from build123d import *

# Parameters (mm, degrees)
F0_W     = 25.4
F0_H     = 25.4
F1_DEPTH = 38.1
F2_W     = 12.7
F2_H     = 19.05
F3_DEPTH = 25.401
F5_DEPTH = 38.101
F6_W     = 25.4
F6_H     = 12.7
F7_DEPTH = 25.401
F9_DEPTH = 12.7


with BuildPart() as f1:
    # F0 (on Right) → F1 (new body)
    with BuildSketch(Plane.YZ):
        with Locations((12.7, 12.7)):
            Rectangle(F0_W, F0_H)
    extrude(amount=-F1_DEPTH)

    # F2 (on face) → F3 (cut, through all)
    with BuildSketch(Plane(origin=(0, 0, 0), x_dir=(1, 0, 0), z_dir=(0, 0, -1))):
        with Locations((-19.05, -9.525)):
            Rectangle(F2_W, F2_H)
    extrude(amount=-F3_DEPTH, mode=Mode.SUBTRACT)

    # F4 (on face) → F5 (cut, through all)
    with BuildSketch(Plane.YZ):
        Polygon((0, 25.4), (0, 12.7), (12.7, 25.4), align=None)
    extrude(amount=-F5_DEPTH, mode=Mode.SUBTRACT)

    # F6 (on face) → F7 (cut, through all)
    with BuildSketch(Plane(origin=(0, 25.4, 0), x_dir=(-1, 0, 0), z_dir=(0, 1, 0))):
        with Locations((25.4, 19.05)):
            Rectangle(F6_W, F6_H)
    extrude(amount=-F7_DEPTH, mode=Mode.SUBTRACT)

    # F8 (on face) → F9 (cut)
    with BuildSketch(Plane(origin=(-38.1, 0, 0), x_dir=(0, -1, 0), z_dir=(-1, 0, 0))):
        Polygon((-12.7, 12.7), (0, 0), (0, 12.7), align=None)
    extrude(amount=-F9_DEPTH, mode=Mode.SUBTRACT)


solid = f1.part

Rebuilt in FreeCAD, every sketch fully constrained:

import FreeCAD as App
import Part
import Sketcher
Q = App.Units.Quantity


def add_polygon(sketch, points):
    """Adds a closed chain of lines whose ends are joined by coincident constraints."""
    first, n = sketch.GeometryCount, len(points)
    for a, b in zip(points, points[1:] + points[:1]):
        sketch.addGeometry(Part.LineSegment(App.Vector(*a, 0), App.Vector(*b, 0)), False)
    for i in range(n):
        sketch.addConstraint(Sketcher.Constraint("Coincident", first + i, 2, first + (i + 1) % n, 1))

doc = App.newDocument("Part")
params = doc.addObject("Spreadsheet::Sheet", "Params")
for row, (alias, value) in enumerate([
    ("sketch1_width", "1 in"),
    ("pad1_length", "1.5 in"),
    ("sketch2_width", "0.5 in"),
    ("sketch2_height", "0.75 in"),
    ("sketch3_width", "0.5 in"),
    ("sketch4_width", "1 in"),
    ("sketch4_height", "0.5 in"),
    ("sketch5_width", "0.5 in"),
    ("pocket4_length", "0.5 in"),
], start=1):
    params.set(f"A{row}", alias)
    params.set(f"B{row}", "=" + value)
    params.setAlias(f"B{row}", alias)

body = doc.addObject("PartDesign::Body", "Body")

# Sketch on YZ plane
sketch1 = body.newObject("Sketcher::SketchObject", "Sketch")
sketch1.AttachmentSupport = (doc.getObject("YZ_Plane"), [""])
sketch1.MapMode = "FlatFace"
add_polygon(sketch1, [(0, 25), (0, 0), (25, 0), (25, 25)])  # lines 0-3
sketch1.addConstraint(Sketcher.Constraint("Vertical", 0))
sketch1.addConstraint(Sketcher.Constraint("Horizontal", 1))
sketch1.addConstraint(Sketcher.Constraint("Vertical", 2))
sketch1.addConstraint(Sketcher.Constraint("Horizontal", 3))
sketch1.addConstraint(Sketcher.Constraint("Coincident", 0, 2, -1, 1))
sketch1.addConstraint(Sketcher.Constraint("Equal", 3, 0))
sketch1.addConstraint(Sketcher.Constraint("DistanceX", 1, 1, 1, 2, Q("1 in")))
sketch1.setExpression("Constraints[10]", "Params.sketch1_width")
pad1 = body.newObject("PartDesign::Pad", "Pad")
pad1.Profile = sketch1
pad1.setExpression("Length", "Params.pad1_length")
pad1.Reversed = True

# Sketch on XY plane
sketch2 = body.newObject("Sketcher::SketchObject", "Sketch001")
sketch2.AttachmentSupport = (doc.getObject("XY_Plane"), [""])
sketch2.MapMode = "FlatFace"
add_polygon(sketch2, [(-25, 0), (-25, 19), (-13, 19), (-13, 0)])  # lines 0-3
sketch2.addConstraint(Sketcher.Constraint("Vertical", 0))
sketch2.addConstraint(Sketcher.Constraint("Horizontal", 1))
sketch2.addConstraint(Sketcher.Constraint("Vertical", 2))
sketch2.addConstraint(Sketcher.Constraint("Horizontal", 3))
sketch2.addConstraint(Sketcher.Constraint("PointOnObject", 2, 2, -1))
sketch2.addConstraint(Sketcher.Constraint("DistanceX", 1, 1, 1, 2, Q("0.5 in")))
sketch2.addConstraint(Sketcher.Constraint("DistanceX", 0, 2, -1, 1, Q("1 in")))
sketch2.addConstraint(Sketcher.Constraint("DistanceY", 0, 1, 0, 2, Q("0.75 in")))
sketch2.setExpression("Constraints[9]", "Params.sketch2_width")
sketch2.setExpression("Constraints[11]", "Params.sketch2_height")
pocket1 = body.newObject("PartDesign::Pocket", "Pocket")
pocket1.Profile = sketch2
pocket1.Type = "ThroughAll"
pocket1.Reversed = True

# Sketch on YZ plane
sketch3 = body.newObject("Sketcher::SketchObject", "Sketch002")
sketch3.AttachmentSupport = (doc.getObject("YZ_Plane"), [""])
sketch3.MapMode = "FlatFace"
add_polygon(sketch3, [(0, 25), (0, 13), (13, 25)])  # lines 0-2
sketch3.addConstraint(Sketcher.Constraint("Vertical", 0))
sketch3.addConstraint(Sketcher.Constraint("Horizontal", 2))
sketch3.addConstraint(Sketcher.Constraint("PointOnObject", 0, 2, -2))
sketch3.addConstraint(Sketcher.Constraint("Equal", 2, 0))
sketch3.addConstraint(Sketcher.Constraint("DistanceX", 2, 2, 2, 1, Q("0.5 in")))
sketch3.addConstraint(Sketcher.Constraint("DistanceY", -1, 1, 1, 2, Q("1 in")))
sketch3.setExpression("Constraints[7]", "Params.sketch3_width")
pocket2 = body.newObject("PartDesign::Pocket", "Pocket001")
pocket2.Profile = sketch3
pocket2.Type = "ThroughAll"

# Sketch on XZ plane
sketch4 = body.newObject("Sketcher::SketchObject", "Sketch003")
sketch4.AttachmentSupport = (doc.getObject("XZ_Plane"), [""])
sketch4.MapMode = "FlatFace"
sketch4.AttachmentOffset = App.Placement(App.Vector(0, 0, -1 * 25.4), App.Rotation())
add_polygon(sketch4, [(-13, 25), (-13, 13), (-38, 13), (-38, 25)])  # lines 0-3
sketch4.addConstraint(Sketcher.Constraint("Vertical", 0))
sketch4.addConstraint(Sketcher.Constraint("Horizontal", 1))
sketch4.addConstraint(Sketcher.Constraint("Vertical", 2))
sketch4.addConstraint(Sketcher.Constraint("Horizontal", 3))
sketch4.addConstraint(Sketcher.Constraint("DistanceX", 1, 2, 1, 1, Q("1 in")))
sketch4.addConstraint(Sketcher.Constraint("DistanceY", 0, 2, 0, 1, Q("0.5 in")))
sketch4.addConstraint(Sketcher.Constraint("DistanceY", -1, 1, 2, 2, Q("1 in")))
sketch4.addConstraint(Sketcher.Constraint("DistanceX", 0, 2, -1, 1, Q("0.5 in")))
sketch4.setExpression("Constraints[8]", "Params.sketch4_width")
sketch4.setExpression("Constraints[9]", "Params.sketch4_height")
pocket3 = body.newObject("PartDesign::Pocket", "Pocket002")
pocket3.Profile = sketch4
pocket3.Type = "ThroughAll"
pocket3.Reversed = True

# Sketch on YZ plane
sketch5 = body.newObject("Sketcher::SketchObject", "Sketch004")
sketch5.AttachmentSupport = (doc.getObject("YZ_Plane"), [""])
sketch5.MapMode = "FlatFace"
sketch5.AttachmentOffset = App.Placement(App.Vector(0, 0, -1.5 * 25.4), App.Rotation())
add_polygon(sketch5, [(13, 13), (0, 0), (0, 13)])  # lines 0-2
sketch5.addConstraint(Sketcher.Constraint("Vertical", 1))
sketch5.addConstraint(Sketcher.Constraint("Horizontal", 2))
sketch5.addConstraint(Sketcher.Constraint("Coincident", 0, 2, -1, 1))
sketch5.addConstraint(Sketcher.Constraint("Equal", 2, 1))
sketch5.addConstraint(Sketcher.Constraint("DistanceX", 2, 1, 2, 2, Q("0.5 in")))
sketch5.setExpression("Constraints[7]", "Params.sketch5_width")
pocket4 = body.newObject("PartDesign::Pocket", "Pocket003")
pocket4.Profile = sketch5
pocket4.setExpression("Length", "Params.pocket4_length")
pocket4.Reversed = True

doc.recompute()
